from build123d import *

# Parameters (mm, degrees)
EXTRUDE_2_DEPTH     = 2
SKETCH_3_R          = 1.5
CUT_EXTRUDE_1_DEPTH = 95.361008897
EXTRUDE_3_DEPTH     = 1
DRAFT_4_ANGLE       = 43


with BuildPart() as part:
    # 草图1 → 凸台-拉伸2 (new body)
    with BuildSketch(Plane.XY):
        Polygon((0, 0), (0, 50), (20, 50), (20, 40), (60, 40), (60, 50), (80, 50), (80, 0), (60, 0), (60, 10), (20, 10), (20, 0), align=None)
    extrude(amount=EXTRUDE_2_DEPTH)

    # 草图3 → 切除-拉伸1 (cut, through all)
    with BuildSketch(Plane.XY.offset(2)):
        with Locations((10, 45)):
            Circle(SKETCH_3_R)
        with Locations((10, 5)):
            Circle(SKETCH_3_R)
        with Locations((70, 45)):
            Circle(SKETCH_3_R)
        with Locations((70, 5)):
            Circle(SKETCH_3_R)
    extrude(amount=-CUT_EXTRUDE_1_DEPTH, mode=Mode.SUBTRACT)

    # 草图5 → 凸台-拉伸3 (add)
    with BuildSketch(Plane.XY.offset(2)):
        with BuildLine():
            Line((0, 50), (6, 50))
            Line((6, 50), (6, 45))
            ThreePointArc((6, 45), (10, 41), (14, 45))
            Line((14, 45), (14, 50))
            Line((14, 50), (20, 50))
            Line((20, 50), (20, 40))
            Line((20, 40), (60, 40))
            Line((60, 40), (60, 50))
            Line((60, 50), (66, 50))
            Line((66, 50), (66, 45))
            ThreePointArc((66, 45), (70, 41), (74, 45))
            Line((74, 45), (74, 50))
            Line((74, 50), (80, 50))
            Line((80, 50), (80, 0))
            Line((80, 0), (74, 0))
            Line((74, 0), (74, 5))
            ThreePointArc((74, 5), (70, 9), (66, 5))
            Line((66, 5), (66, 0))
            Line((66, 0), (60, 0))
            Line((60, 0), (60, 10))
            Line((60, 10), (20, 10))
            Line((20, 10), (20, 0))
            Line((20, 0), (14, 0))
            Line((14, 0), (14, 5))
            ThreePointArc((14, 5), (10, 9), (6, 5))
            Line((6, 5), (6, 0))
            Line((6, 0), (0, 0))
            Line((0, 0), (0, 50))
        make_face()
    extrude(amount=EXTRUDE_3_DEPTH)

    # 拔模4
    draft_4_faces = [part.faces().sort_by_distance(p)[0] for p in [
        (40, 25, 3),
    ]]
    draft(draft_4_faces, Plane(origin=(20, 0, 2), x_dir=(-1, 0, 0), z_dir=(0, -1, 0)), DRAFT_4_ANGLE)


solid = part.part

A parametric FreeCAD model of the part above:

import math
import FreeCAD as App
import Part
import Sketcher
from FreeCAD import Vector


def faces_at(feature, points):
    """Names of the faces that lie closest to the given points."""
    faces = feature.Shape.Faces
    near = lambda p: min(range(len(faces)), key=lambda i: faces[i].distToShape(Part.Vertex(*p))[0])
    return sorted({f"Face{near(p) + 1}" for p in points})


def add_polygon(sketch, points):
    """Adds a closed chain of lines whose ends are joined by coincident constraints."""
    first, n = sketch.GeometryCount, len(points)
    for a, b in zip(points, points[1:] + points[:1]):
        sketch.addGeometry(Part.LineSegment(App.Vector(*a, 0), App.Vector(*b, 0)), False)
    for i in range(n):
        sketch.addConstraint(Sketcher.Constraint("Coincident", first + i, 2, first + (i + 1) % n, 1))

doc = App.newDocument("Part")
body = doc.addObject("PartDesign::Body", "Body")

# Sketch on XY plane
sketch1 = doc.addObject("Sketcher::SketchObject", "Sketch")
body.addObject(sketch1)
sketch1.AttachmentSupport = (doc.XY_Plane, [""])
sketch1.MapMode = "FlatFace"
add_polygon(sketch1, [(0, 50), (0, 0), (20, 0), (20, 10), (60, 10), (60, 0), (80, 0), (80, 50), (60, 50), (60, 40), (20, 40), (20, 50)])  # lines 0-11
sketch1.addConstraint(Sketcher.Constraint("Vertical", 0))
sketch1.addConstraint(Sketcher.Constraint("Horizontal", 1))
sketch1.addConstraint(Sketcher.Constraint("Vertical", 2))
sketch1.addConstraint(Sketcher.Constraint("Horizontal", 3))
sketch1.addConstraint(Sketcher.Constraint("Vertical", 4))
sketch1.addConstraint(Sketcher.Constraint("Horizontal", 5))
sketch1.addConstraint(Sketcher.Constraint("Vertical", 6))
sketch1.addConstraint(Sketcher.Constraint("Horizontal", 7))
sketch1.addConstraint(Sketcher.Constraint("Vertical", 8))
sketch1.addConstraint(Sketcher.Constraint("Horizontal", 9))
sketch1.addConstraint(Sketcher.Constraint("Vertical", 10))
sketch1.addConstraint(Sketcher.Constraint("Horizontal", 11))
sketch1.addConstraint(Sketcher.Constraint("Coincident", 0, 2, -1, 1))
sketch1.addConstraint(Sketcher.Constraint("PointOnObject", 4, 2, -1))
sketch1.addConstraint(Sketcher.Constraint("Horizontal", 7, 2, 10, 2))
sketch1.addConstraint(Sketcher.Constraint("Vertical", 4, 2, 7, 2))
sketch1.addConstraint(Sketcher.Constraint("Vertical", 2, 2, 9, 2))
sketch1.addConstraint(Sketcher.Constraint("Equal", 1, 5))
sketch1.addConstraint(Sketcher.Constraint("Equal", 4, 8))
sketch1.addConstraint(Sketcher.Constraint("DistanceX", 1, 1, 1, 2, 20.0))
sketch1.addConstraint(Sketcher.Constraint("DistanceX", 3, 1, 3, 2, 40.0))
sketch1.addConstraint(Sketcher.Constraint("DistanceY", 0, 2, 0, 1, 50.0))
sketch1.addConstraint(Sketcher.Constraint("DistanceY", 2, 1, 2, 2, 10.0))
pad1 = doc.addObject("PartDesign::Pad", "Pad")
body.addObject(pad1)
pad1.Profile = sketch1
pad1.Length = 2

# Sketch on XY plane
sketch2 = doc.addObject("Sketcher::SketchObject", "Sketch001")
body.addObject(sketch2)
sketch2.AttachmentSupport = (doc.XY_Plane, [""])
sketch2.MapMode = "FlatFace"
sketch2.AttachmentOffset = App.Placement(Vector(0, 0, 2), App.Rotation())
sketch2.addGeometry(Part.Circle(Vector(10, 45, 0), Vector(0, 0, 1), 1.5), False)
sketch2.addGeometry(Part.Circle(Vector(10, 5, 0), Vector(0, 0, 1), 1.5), False)
sketch2.addGeometry(Part.Circle(Vector(70, 45, 0), Vector(0, 0, 1), 1.5), False)
sketch2.addGeometry(Part.Circle(Vector(70, 5, 0), Vector(0, 0, 1), 1.5), False)
sketch2.addConstraint(Sketcher.Constraint("Equal", 0, 1))
sketch2.addConstraint(Sketcher.Constraint("Equal", 1, 2))
sketch2.addConstraint(Sketcher.Constraint("Equal", 2, 3))
sketch2.addConstraint(Sketcher.Constraint("Horizontal", 0, 3, 2, 3))
sketch2.addConstraint(Sketcher.Constraint("Horizontal", 1, 3, 3, 3))
sketch2.addConstraint(Sketcher.Constraint("Vertical", 0, 3, 1, 3))
sketch2.addConstraint(Sketcher.Constraint("Vertical", 2, 3, 3, 3))
sketch2.addConstraint(Sketcher.Constraint("Diameter", 0, 3.0))
sketch2.addConstraint(Sketcher.Constraint("DistanceX", -1, 1, 0, 3, 10.0))
sketch2.addConstraint(Sketcher.Constraint("DistanceY", -1, 1, 0, 3, 45.0))
sketch2.addConstraint(Sketcher.Constraint("DistanceY", -1, 1, 1, 3, 5.0))
sketch2.addConstraint(Sketcher.Constraint("DistanceX", -1, 1, 2, 3, 70.0))
pocket1 = doc.addObject("PartDesign::Pocket", "Pocket")
body.addObject(pocket1)
pocket1.Profile = sketch2
pocket1.Type = "ThroughAll"

# Sketch on XY plane
sketch3 = doc.addObject("Sketcher::SketchObject", "Sketch002")
body.addObject(sketch3)
sketch3.AttachmentSupport = (doc.XY_Plane, [""])
sketch3.MapMode = "FlatFace"
sketch3.AttachmentOffset = App.Placement(Vector(0, 0, 2), App.Rotation())
sketch3.addGeometry(Part.LineSegment(Vector(6, 50, 0), Vector(0, 50, 0)), False)
sketch3.addGeometry(Part.LineSegment(Vector(0, 50, 0), Vector(0, 0, 0)), False)
sketch3.addGeometry(Part.LineSegment(Vector(0, 0, 0), Vector(6, 0, 0)), False)
sketch3.addGeometry(Part.LineSegment(Vector(6, 0, 0), Vector(6, 5, 0)), False)
sketch3.addGeometry(Part.ArcOfCircle(Part.Circle(Vector(10, 5, 0), Vector(0, 0, 1), 4), math.radians(0), math.radians(180)), False)
sketch3.addGeometry(Part.LineSegment(Vector(14, 5, 0), Vector(14, 0, 0)), False)
sketch3.addGeometry(Part.LineSegment(Vector(14, 0, 0), Vector(20, 0, 0)), False)
sketch3.addGeometry(Part.LineSegment(Vector(20, 0, 0), Vector(20, 10, 0)), False)
sketch3.addGeometry(Part.LineSegment(Vector(20, 10, 0), Vector(60, 10, 0)), False)
sketch3.addGeometry(Part.LineSegment(Vector(60, 10, 0), Vector(60, 0, 0)), False)
sketch3.addGeometry(Part.LineSegment(Vector(60, 0, 0), Vector(66, 0, 0)), False)
sketch3.addGeometry(Part.LineSegment(Vector(66, 0, 0), Vector(66, 5, 0)), False)
sketch3.addGeometry(Part.ArcOfCircle(Part.Circle(Vector(70, 5, 0), Vector(0, 0, 1), 4), math.radians(0), math.radians(180)), False)
sketch3.addGeometry(Part.LineSegment(Vector(74, 5, 0), Vector(74, 0, 0)), False)
sketch3.addGeometry(Part.LineSegment(Vector(74, 0, 0), Vector(80, 0, 0)), False)
sketch3.addGeometry(Part.LineSegment(Vector(80, 0, 0), Vector(80, 50, 0)), False)
sketch3.addGeometry(Part.LineSegment(Vector(80, 50, 0), Vector(74, 50, 0)), False)
sketch3.addGeometry(Part.LineSegment(Vector(74, 50, 0), Vector(74, 45, 0)), False)
sketch3.addGeometry(Part.ArcOfCircle(Part.Circle(Vector(70, 45, 0), Vector(0, 0, 1), 4), math.radians(180), math.radians(360)), False)
sketch3.addGeometry(Part.LineSegment(Vector(66, 45, 0), Vector(66, 50, 0)), False)
sketch3.addGeometry(Part.LineSegment(Vector(66, 50, 0), Vector(60, 50, 0)), False)
sketch3.addGeometry(Part.LineSegment(Vector(60, 50, 0), Vector(60, 40, 0)), False)
sketch3.addGeometry(Part.LineSegment(Vector(60, 40, 0), Vector(20, 40, 0)), False)
sketch3.addGeometry(Part.LineSegment(Vector(20, 40, 0), Vector(20, 50, 0)), False)
sketch3.addGeometry(Part.LineSegment(Vector(20, 50, 0), Vector(14, 50, 0)), False)
sketch3.addGeometry(Part.LineSegment(Vector(14, 50, 0), Vector(14, 45, 0)), False)
sketch3.addGeometry(Part.ArcOfCircle(Part.Circle(Vector(10, 45, 0), Vector(0, 0, 1), 4), math.radians(180), math.radians(360)), False)
sketch3.addGeometry(Part.LineSegment(Vector(6, 45, 0), Vector(6, 50, 0)), False)
sketch3.addConstraint(Sketcher.Constraint("Coincident", 0, 2, 1, 1))
sketch3.addConstraint(Sketcher.Constraint("Coincident", 1, 2, 2, 1))
sketch3.addConstraint(Sketcher.Constraint("Coincident", 2, 2, 3, 1))
sketch3.addConstraint(Sketcher.Constraint("Tangent", 3, 2, 4, 2))
sketch3.addConstraint(Sketcher.Constraint("Tangent", 4, 1, 5, 1))
sketch3.addConstraint(Sketcher.Constraint("Coincident", 5, 2, 6, 1))
sketch3.addConstraint(Sketcher.Constraint("Coincident", 6, 2, 7, 1))
sketch3.addConstraint(Sketcher.Constraint("Coincident", 7, 2, 8, 1))
sketch3.addConstraint(Sketcher.Constraint("Coincident", 8, 2, 9, 1))
sketch3.addConstraint(Sketcher.Constraint("Coincident", 9, 2, 10, 1))
sketch3.addConstraint(Sketcher.Constraint("Coincident", 10, 2, 11, 1))
sketch3.addConstraint(Sketcher.Constraint("Tangent", 11, 2, 12, 2))
sketch3.addConstraint(Sketcher.Constraint("Tangent", 12, 1, 13, 1))
sketch3.addConstraint(Sketcher.Constraint("Coincident", 13, 2, 14, 1))
sketch3.addConstraint(Sketcher.Constraint("Coincident", 14, 2, 15, 1))
sketch3.addConstraint(Sketcher.Constraint("Coincident", 15, 2, 16, 1))
sketch3.addConstraint(Sketcher.Constraint("Coincident", 16, 2, 17, 1))
sketch3.addConstraint(Sketcher.Constraint("Tangent", 17, 2, 18, 2))
sketch3.addConstraint(Sketcher.Constraint("Tangent", 18, 1, 19, 1))
sketch3.addConstraint(Sketcher.Constraint("Coincident", 19, 2, 20, 1))
sketch3.addConstraint(Sketcher.Constraint("Coincident", 20, 2, 21, 1))
sketch3.addConstraint(Sketcher.Constraint("Coincident", 21, 2, 22, 1))
sketch3.addConstraint(Sketcher.Constraint("Coincident", 22, 2, 23, 1))
sketch3.addConstraint(Sketcher.Constraint("Coincident", 23, 2, 24, 1))
sketch3.addConstraint(Sketcher.Constraint("Coincident", 24, 2, 25, 1))
sketch3.addConstraint(Sketcher.Constraint("Tangent", 25, 2, 26, 2))
sketch3.addConstraint(Sketcher.Constraint("Tangent", 26, 1, 27, 1))
sketch3.addConstraint(Sketcher.Constraint("Coincident", 27, 2, 0, 1))
sketch3.addConstraint(Sketcher.Constraint("Horizontal", 0))
sketch3.addConstraint(Sketcher.Constraint("Vertical", 1))
sketch3.addConstraint(Sketcher.Constraint("Horizontal", 2))
sketch3.addConstraint(Sketcher.Constraint("Vertical", 3))
sketch3.addConstraint(Sketcher.Constraint("Vertical", 5))
sketch3.addConstraint(Sketcher.Constraint("Horizontal", 6))
sketch3.addConstraint(Sketcher.Constraint("Vertical", 7))
sketch3.addConstraint(Sketcher.Constraint("Horizontal", 8))
sketch3.addConstraint(Sketcher.Constraint("Vertical", 9))
sketch3.addConstraint(Sketcher.Constraint("Horizontal", 10))
sketch3.addConstraint(Sketcher.Constraint("Vertical", 11))
sketch3.addConstraint(Sketcher.Constraint("Vertical", 13))
sketch3.addConstraint(Sketcher.Constraint("Horizontal", 14))
sketch3.addConstraint(Sketcher.Constraint("Vertical", 15))
sketch3.addConstraint(Sketcher.Constraint("Horizontal", 16))
sketch3.addConstraint(Sketcher.Constraint("Vertical", 17))
sketch3.addConstraint(Sketcher.Constraint("Vertical", 19))
sketch3.addConstraint(Sketcher.Constraint("Horizontal", 20))
sketch3.addConstraint(Sketcher.Constraint("Vertical", 21))
sketch3.addConstraint(Sketcher.Constraint("Horizontal", 22))
sketch3.addConstraint(Sketcher.Constraint("Vertical", 23))
sketch3.addConstraint(Sketcher.Constraint("Horizontal", 24))
sketch3.addConstraint(Sketcher.Constraint("Vertical", 25))
sketch3.addConstraint(Sketcher.Constraint("Vertical", 27))
sketch3.addConstraint(Sketcher.Constraint("Coincident", 1, 2, -1, 1))
sketch3.addConstraint(Sketcher.Constraint("Equal", 4, 12))
sketch3.addConstraint(Sketcher.Constraint("Equal", 12, 18))
sketch3.addConstraint(Sketcher.Constraint("Equal", 18, 26))
sketch3.addConstraint(Sketcher.Constraint("PointOnObject", 5, 2, -1))
sketch3.addConstraint(Sketcher.Constraint("PointOnObject", 9, 2, -1))
sketch3.addConstraint(Sketcher.Constraint("PointOnObject", 13, 2, -1))
sketch3.addConstraint(Sketcher.Constraint("Horizontal", 4, 3, 12, 3))
sketch3.addConstraint(Sketcher.Constraint("Horizontal", 18, 3, 26, 3))
sketch3.addConstraint(Sketcher.Constraint("Horizontal", 0, 2, 15, 2))
sketch3.addConstraint(Sketcher.Constraint("Horizontal", 16, 2, 19, 2))
sketch3.addConstraint(Sketcher.Constraint("Horizontal", 20, 2, 23, 2))
sketch3.addConstraint(Sketcher.Constraint("Vertical", 12, 3, 18, 3))
sketch3.addConstraint(Sketcher.Constraint("Vertical", 4, 3, 26, 3))
sketch3.addConstraint(Sketcher.Constraint("Vertical", 9, 2, 20, 2))
sketch3.addConstraint(Sketcher.Constraint("Vertical", 7, 2, 22, 2))
sketch3.addConstraint(Sketcher.Constraint("Equal", 2, 6))
sketch3.addConstraint(Sketcher.Constraint("Equal", 6, 10))
sketch3.addConstraint(Sketcher.Constraint("Equal", 10, 14))
sketch3.addConstraint(Sketcher.Constraint("Equal", 13, 17))
sketch3.addConstraint(Sketcher.Constraint("Equal", 9, 21))
sketch3.addConstraint(Sketcher.Constraint("Radius", 4, 4.0))
sketch3.addConstraint(Sketcher.Constraint("DistanceX", 0, 2, 0, 1, 6.0))
sketch3.addConstraint(Sketcher.Constraint("DistanceX", 8, 1, 8, 2, 40.0))
sketch3.addConstraint(Sketcher.Constraint("DistanceY", 1, 2, 1, 1, 50.0))
sketch3.addConstraint(Sketcher.Constraint("DistanceY", 3, 1, 3, 2, 5.0))
sketch3.addConstraint(Sketcher.Constraint("DistanceY", 7, 1, 7, 2, 10.0))
pad2 = doc.addObject("PartDesign::Pad", "Pad001")
body.addObject(pad2)
pad2.Profile = sketch3
pad2.Length = 1
doc.recompute()

draft = doc.addObject("PartDesign::Draft", "Draft")
body.addObject(draft)
draft.Base = (pad2, faces_at(pad2, [(40, 25, 3)]))
draft.NeutralPlane = (doc.XZ_Plane, [""])
draft.Angle = 43
draft.Reversed = False

doc.recompute()
